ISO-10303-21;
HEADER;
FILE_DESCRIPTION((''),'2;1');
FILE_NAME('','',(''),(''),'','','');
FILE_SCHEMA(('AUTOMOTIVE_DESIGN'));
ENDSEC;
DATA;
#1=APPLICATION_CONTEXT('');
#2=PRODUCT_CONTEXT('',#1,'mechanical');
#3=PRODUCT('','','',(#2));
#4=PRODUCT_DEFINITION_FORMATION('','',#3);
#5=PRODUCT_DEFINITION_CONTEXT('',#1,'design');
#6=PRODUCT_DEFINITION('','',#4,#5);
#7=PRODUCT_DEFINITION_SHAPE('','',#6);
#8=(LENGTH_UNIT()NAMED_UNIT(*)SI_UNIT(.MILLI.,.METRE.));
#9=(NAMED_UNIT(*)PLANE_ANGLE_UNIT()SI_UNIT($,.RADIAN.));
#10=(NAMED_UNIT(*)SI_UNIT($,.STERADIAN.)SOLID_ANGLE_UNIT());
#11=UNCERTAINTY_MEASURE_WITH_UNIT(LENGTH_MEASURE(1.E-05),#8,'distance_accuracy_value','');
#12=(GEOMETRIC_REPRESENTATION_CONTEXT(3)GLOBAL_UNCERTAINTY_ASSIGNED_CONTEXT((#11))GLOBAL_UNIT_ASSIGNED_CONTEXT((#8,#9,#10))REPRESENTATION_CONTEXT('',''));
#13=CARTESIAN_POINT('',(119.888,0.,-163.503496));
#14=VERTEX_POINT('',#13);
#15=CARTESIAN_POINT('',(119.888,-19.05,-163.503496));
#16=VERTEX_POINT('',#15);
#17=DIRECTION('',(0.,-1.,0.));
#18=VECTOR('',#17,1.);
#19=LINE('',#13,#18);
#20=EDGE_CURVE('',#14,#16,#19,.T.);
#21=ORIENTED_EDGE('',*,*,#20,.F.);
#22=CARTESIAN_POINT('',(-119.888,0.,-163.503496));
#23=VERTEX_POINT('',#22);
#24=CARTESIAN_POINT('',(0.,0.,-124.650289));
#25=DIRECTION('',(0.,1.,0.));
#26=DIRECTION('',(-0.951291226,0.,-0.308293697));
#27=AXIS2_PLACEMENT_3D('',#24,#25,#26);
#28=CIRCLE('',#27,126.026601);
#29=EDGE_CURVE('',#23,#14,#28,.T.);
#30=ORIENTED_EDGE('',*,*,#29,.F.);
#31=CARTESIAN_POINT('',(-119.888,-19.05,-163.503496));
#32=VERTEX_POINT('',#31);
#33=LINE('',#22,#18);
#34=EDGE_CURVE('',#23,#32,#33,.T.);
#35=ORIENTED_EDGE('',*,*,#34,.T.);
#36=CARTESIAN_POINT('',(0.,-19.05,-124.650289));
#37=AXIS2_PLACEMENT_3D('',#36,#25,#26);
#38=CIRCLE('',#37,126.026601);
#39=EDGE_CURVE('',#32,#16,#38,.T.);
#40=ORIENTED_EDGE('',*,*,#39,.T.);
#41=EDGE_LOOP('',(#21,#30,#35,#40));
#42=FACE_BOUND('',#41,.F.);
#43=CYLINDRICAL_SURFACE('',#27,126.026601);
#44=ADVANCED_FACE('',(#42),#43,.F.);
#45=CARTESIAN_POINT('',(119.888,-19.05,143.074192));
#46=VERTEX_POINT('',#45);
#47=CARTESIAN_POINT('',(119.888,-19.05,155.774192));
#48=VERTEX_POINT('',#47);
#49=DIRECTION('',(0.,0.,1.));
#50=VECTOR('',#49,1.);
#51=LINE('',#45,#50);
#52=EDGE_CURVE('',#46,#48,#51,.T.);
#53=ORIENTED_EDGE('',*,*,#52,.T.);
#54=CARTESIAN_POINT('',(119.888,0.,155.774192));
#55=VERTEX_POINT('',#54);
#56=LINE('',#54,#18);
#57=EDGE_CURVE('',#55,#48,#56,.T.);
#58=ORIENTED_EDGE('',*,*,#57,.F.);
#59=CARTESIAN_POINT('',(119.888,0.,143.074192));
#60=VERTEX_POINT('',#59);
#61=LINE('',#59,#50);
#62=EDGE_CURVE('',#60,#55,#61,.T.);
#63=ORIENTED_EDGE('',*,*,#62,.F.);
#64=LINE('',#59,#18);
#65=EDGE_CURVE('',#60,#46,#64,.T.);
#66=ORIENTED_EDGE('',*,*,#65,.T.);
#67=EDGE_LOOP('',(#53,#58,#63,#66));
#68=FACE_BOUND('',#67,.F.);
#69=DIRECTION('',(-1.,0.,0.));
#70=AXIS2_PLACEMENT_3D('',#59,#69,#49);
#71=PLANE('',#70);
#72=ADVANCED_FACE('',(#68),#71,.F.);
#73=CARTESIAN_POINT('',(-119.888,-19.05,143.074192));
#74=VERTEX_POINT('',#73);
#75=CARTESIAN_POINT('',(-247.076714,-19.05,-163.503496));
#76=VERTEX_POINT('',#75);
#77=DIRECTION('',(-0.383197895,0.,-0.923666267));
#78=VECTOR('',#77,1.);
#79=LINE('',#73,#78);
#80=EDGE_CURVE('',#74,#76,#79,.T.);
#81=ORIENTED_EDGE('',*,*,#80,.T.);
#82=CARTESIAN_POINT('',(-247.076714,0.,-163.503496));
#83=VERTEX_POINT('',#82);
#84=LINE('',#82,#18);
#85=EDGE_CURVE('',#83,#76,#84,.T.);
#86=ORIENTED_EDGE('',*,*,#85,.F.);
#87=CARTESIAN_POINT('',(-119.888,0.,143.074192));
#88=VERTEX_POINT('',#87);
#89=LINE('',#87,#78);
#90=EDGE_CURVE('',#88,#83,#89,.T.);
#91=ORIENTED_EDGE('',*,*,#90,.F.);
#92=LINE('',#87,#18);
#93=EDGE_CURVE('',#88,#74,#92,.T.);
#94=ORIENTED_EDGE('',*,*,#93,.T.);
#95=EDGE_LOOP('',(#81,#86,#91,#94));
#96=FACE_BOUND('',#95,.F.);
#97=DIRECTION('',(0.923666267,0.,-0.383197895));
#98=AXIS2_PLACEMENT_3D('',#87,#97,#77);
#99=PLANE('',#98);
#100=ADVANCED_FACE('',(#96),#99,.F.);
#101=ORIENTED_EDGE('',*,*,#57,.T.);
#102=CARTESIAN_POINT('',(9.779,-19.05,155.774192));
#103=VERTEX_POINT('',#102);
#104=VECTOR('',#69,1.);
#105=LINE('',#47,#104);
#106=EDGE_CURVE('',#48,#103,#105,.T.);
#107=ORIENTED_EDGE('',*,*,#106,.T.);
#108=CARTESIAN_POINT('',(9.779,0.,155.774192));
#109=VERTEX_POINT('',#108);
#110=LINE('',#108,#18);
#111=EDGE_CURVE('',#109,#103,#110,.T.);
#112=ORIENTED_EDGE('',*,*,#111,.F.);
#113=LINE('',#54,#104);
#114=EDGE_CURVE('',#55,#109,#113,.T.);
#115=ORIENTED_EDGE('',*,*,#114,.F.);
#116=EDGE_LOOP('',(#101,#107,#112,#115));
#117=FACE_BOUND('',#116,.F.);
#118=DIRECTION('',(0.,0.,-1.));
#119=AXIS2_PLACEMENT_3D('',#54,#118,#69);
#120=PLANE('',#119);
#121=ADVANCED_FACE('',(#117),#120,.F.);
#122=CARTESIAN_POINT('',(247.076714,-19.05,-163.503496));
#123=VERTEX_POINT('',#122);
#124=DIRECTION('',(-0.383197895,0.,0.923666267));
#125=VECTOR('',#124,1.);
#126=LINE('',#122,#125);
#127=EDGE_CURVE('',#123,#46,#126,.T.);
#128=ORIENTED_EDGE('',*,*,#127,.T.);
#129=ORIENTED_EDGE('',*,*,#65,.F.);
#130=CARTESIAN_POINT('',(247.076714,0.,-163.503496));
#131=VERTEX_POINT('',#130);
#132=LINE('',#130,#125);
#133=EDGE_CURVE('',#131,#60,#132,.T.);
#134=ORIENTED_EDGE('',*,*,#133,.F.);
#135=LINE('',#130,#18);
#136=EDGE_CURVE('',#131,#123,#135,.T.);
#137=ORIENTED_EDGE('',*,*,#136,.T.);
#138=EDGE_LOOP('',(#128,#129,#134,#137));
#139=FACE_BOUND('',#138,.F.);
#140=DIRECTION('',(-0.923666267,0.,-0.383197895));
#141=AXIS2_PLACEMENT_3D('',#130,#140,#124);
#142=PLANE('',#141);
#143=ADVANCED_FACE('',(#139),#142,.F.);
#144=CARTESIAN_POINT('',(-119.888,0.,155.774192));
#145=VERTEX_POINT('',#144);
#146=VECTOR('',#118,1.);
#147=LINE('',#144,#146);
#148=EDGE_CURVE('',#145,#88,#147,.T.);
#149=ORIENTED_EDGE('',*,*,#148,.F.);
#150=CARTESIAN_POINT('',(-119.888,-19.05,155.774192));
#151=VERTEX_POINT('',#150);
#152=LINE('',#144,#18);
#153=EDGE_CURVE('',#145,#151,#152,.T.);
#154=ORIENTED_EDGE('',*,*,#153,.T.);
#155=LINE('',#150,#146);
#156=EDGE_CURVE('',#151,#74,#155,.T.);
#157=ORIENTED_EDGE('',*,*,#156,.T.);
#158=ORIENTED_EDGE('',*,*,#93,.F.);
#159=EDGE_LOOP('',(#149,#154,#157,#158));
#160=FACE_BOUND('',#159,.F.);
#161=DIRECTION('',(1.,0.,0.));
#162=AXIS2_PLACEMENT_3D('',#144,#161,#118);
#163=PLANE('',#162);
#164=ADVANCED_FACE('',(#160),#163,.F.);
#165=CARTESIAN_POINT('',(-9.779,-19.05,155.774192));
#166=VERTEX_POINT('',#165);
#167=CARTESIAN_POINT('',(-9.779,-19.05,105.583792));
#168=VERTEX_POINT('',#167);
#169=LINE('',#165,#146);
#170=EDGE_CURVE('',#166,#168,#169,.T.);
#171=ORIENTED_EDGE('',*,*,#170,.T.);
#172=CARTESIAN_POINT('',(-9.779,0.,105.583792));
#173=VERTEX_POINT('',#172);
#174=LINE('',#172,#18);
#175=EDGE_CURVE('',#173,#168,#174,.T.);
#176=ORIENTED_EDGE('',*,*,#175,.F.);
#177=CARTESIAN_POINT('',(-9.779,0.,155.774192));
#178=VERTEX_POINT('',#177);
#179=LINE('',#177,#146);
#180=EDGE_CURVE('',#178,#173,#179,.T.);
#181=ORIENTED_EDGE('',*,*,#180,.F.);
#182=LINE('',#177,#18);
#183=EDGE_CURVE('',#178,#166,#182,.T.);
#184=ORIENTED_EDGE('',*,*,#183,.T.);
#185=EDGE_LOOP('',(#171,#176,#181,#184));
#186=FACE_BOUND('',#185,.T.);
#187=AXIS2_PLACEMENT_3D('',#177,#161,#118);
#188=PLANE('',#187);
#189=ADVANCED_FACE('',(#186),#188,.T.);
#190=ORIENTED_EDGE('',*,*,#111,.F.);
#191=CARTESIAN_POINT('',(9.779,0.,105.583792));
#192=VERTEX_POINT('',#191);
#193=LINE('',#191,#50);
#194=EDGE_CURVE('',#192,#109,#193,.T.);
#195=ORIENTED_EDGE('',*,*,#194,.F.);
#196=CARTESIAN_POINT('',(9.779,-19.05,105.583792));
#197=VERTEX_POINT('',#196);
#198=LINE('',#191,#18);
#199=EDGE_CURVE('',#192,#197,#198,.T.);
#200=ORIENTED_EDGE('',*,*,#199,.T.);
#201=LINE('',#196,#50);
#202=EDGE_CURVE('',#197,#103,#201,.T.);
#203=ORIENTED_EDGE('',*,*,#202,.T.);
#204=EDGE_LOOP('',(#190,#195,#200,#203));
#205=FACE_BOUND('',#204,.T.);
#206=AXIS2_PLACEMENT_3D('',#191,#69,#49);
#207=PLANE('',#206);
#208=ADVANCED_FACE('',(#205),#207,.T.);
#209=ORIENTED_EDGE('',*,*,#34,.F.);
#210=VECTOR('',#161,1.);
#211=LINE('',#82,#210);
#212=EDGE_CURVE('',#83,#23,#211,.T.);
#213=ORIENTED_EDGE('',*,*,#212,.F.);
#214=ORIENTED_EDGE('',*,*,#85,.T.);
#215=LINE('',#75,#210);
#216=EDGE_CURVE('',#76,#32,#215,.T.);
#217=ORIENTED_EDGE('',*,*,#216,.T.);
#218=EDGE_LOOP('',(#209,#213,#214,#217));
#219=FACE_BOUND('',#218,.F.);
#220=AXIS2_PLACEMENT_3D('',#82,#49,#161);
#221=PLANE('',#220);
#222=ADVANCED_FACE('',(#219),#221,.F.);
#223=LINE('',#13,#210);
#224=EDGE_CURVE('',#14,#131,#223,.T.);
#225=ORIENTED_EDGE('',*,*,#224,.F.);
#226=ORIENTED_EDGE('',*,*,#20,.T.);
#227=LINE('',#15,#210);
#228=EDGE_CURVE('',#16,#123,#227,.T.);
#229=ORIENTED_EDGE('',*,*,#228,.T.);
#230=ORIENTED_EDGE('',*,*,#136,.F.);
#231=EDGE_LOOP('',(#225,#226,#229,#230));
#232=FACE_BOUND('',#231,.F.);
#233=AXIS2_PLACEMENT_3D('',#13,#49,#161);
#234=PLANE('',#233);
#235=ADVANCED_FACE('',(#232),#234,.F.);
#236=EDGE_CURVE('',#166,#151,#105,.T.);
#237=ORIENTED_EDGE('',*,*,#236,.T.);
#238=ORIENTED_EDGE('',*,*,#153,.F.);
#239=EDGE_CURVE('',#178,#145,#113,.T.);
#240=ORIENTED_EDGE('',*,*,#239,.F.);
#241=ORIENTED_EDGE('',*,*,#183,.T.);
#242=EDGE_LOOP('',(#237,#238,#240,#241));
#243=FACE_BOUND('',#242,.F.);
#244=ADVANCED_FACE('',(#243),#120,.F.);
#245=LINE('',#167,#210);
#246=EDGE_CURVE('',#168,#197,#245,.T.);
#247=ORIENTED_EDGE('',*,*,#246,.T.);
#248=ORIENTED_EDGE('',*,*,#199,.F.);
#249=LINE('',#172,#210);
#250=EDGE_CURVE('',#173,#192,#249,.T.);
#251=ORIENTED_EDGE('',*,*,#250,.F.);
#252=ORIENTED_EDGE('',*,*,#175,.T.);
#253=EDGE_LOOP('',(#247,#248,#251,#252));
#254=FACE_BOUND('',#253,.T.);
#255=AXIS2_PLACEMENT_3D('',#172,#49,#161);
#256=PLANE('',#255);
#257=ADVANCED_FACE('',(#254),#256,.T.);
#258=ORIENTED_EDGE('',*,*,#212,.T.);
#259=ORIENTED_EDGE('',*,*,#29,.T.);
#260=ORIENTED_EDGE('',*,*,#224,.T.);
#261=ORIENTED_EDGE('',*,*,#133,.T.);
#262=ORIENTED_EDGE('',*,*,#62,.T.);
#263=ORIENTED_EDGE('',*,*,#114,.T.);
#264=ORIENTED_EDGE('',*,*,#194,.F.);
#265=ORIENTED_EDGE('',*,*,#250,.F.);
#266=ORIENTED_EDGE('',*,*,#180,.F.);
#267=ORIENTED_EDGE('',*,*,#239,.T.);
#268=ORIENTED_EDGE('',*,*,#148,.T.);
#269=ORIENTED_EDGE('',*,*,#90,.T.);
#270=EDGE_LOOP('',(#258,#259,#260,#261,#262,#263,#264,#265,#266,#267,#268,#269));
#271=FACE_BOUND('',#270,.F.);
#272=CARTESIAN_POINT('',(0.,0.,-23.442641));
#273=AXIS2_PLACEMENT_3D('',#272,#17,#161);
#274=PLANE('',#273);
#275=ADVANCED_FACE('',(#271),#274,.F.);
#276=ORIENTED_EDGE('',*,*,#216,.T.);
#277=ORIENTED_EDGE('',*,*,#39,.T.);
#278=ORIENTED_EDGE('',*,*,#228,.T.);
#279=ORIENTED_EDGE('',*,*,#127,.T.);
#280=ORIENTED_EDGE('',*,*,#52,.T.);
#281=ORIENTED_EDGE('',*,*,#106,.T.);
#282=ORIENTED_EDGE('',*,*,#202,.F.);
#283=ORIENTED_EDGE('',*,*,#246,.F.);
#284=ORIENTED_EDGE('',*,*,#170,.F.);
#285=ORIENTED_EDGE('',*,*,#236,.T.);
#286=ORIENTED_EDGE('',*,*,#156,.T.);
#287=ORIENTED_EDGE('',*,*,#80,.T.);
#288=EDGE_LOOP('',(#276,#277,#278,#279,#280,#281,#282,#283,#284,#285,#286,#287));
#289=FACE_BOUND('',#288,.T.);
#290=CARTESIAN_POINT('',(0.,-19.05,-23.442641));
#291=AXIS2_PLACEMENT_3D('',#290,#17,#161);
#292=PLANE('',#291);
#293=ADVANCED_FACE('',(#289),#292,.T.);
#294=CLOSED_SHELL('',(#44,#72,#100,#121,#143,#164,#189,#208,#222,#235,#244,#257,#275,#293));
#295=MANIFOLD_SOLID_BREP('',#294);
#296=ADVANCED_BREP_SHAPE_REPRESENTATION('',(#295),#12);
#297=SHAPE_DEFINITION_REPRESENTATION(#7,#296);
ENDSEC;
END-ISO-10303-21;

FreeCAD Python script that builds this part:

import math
import FreeCAD as App
import Part
import Sketcher
Q = App.Units.Quantity


def add_polygon(sketch, points):
    """Adds a closed chain of lines whose ends are joined by coincident constraints."""
    first, n = sketch.GeometryCount, len(points)
    for a, b in zip(points, points[1:] + points[:1]):
        sketch.addGeometry(Part.LineSegment(App.Vector(*a, 0), App.Vector(*b, 0)), False)
    for i in range(n):
        sketch.addConstraint(Sketcher.Constraint("Coincident", first + i, 2, first + (i + 1) % n, 1))

doc = App.newDocument("Part")
body = doc.addObject("PartDesign::Body", "Body")

# Sketch on XZ plane
sketch1 = body.newObject("Sketcher::SketchObject", "Sketch")
sketch1.AttachmentSupport = (doc.getObject("XZ_Plane"), [""])
sketch1.MapMode = "FlatFace"
sketch1.addGeometry([
    Part.LineSegment(App.Vector(119.888, 155.774192, 0), App.Vector(-119.888, 155.774192, 0)),  # 0
    Part.LineSegment(App.Vector(-119.888, 155.774192, 0), App.Vector(-119.888, 143.074192, 0)),  # 1
    Part.LineSegment(App.Vector(-119.888, 143.074192, 0), App.Vector(-247.076714, -163.503496, 0)),  # 2
    Part.LineSegment(App.Vector(-247.076714, -163.503496, 0), App.Vector(-119.888, -163.503496, 0)),  # 3
    Part.ArcOfCircle(Part.Circle(App.Vector(0, -124.650289, 0), App.Vector(0, 0, 1), 126.026601), math.radians(-17.956431), math.radians(197.956431)),  # 4
    Part.LineSegment(App.Vector(119.888, -163.503496, 0), App.Vector(247.076714, -163.503496, 0)),  # 5
    Part.LineSegment(App.Vector(247.076714, -163.503496, 0), App.Vector(119.888, 143.074192, 0)),  # 6
    Part.LineSegment(App.Vector(119.888, 143.074192, 0), App.Vector(119.888, 155.774192, 0)),  # 7
], False)
sketch1.addConstraint([
    Sketcher.Constraint("Coincident", 0, 2, 1, 1),
    Sketcher.Constraint("Coincident", 1, 2, 2, 1),
    Sketcher.Constraint("Coincident", 2, 2, 3, 1),
    Sketcher.Constraint("Coincident", 3, 2, 4, 2),
    Sketcher.Constraint("Coincident", 4, 1, 5, 1),
    Sketcher.Constraint("Coincident", 5, 2, 6, 1),
    Sketcher.Constraint("Coincident", 6, 2, 7, 1),
    Sketcher.Constraint("Coincident", 7, 2, 0, 1),
    Sketcher.Constraint("Horizontal", 0),
    Sketcher.Constraint("Vertical", 1),
    Sketcher.Constraint("Horizontal", 3),
    Sketcher.Constraint("Horizontal", 5),
    Sketcher.Constraint("Vertical", 7),
    Sketcher.Constraint("Symmetric", 3, 2, 4, 1, -2),
    Sketcher.Constraint("Symmetric", 1, 2, 6, 2, -2),
    Sketcher.Constraint("Vertical", 1, 2, 3, 2),
    Sketcher.Constraint("Equal", 3, 5),
    Sketcher.Constraint("DistanceY", 1, 2, 1, 1, Q("0.5 in")),
    Sketcher.Constraint("DistanceX", 0, 2, 0, 1, Q("9.44 in")),
    Sketcher.Constraint("Radius", 4, 126.026601),
    Sketcher.Constraint("DistanceX", 3, 1, 3, 2, 127.188714),
    Sketcher.Constraint("DistanceY", 4, 3, -1, 1, 124.650289),
    Sketcher.Constraint("DistanceY", -1, 1, 0, 2, 155.774192),
])
pad1 = body.newObject("PartDesign::Pad", "Pad")
pad1.Profile = sketch1
pad1.Length = Q("0.75 in")

# Sketch on XZ plane
sketch2 = body.newObject("Sketcher::SketchObject", "Sketch001")
sketch2.AttachmentSupport = (doc.getObject("XZ_Plane"), [""])
sketch2.MapMode = "FlatFace"
add_polygon(sketch2, [(-9.779, 105.583792), (9.779, 105.583792), (9.779, 155.774192), (-9.779, 155.774192)])  # lines 0-3
sketch2.addConstraint([
    Sketcher.Constraint("Horizontal", 0),
    Sketcher.Constraint("Vertical", 1),
    Sketcher.Constraint("Horizontal", 2),
    Sketcher.Constraint("Vertical", 3),
    Sketcher.Constraint("DistanceX", 0, 1, 0, 2, Q("0.77 in")),
    Sketcher.Constraint("DistanceY", 1, 1, 1, 2, Q("1.976 in")),
    Sketcher.Constraint("DistanceX", -1, 1, 0, 2, Q("0.385 in")),
    Sketcher.Constraint("DistanceY", -1, 1, 1, 2, 155.774192),
])
pocket1 = body.newObject("PartDesign::Pocket", "Pocket")
pocket1.Profile = sketch2
pocket1.Length = Q("0.75 in")
pocket1.Reversed = True

doc.recompute()
